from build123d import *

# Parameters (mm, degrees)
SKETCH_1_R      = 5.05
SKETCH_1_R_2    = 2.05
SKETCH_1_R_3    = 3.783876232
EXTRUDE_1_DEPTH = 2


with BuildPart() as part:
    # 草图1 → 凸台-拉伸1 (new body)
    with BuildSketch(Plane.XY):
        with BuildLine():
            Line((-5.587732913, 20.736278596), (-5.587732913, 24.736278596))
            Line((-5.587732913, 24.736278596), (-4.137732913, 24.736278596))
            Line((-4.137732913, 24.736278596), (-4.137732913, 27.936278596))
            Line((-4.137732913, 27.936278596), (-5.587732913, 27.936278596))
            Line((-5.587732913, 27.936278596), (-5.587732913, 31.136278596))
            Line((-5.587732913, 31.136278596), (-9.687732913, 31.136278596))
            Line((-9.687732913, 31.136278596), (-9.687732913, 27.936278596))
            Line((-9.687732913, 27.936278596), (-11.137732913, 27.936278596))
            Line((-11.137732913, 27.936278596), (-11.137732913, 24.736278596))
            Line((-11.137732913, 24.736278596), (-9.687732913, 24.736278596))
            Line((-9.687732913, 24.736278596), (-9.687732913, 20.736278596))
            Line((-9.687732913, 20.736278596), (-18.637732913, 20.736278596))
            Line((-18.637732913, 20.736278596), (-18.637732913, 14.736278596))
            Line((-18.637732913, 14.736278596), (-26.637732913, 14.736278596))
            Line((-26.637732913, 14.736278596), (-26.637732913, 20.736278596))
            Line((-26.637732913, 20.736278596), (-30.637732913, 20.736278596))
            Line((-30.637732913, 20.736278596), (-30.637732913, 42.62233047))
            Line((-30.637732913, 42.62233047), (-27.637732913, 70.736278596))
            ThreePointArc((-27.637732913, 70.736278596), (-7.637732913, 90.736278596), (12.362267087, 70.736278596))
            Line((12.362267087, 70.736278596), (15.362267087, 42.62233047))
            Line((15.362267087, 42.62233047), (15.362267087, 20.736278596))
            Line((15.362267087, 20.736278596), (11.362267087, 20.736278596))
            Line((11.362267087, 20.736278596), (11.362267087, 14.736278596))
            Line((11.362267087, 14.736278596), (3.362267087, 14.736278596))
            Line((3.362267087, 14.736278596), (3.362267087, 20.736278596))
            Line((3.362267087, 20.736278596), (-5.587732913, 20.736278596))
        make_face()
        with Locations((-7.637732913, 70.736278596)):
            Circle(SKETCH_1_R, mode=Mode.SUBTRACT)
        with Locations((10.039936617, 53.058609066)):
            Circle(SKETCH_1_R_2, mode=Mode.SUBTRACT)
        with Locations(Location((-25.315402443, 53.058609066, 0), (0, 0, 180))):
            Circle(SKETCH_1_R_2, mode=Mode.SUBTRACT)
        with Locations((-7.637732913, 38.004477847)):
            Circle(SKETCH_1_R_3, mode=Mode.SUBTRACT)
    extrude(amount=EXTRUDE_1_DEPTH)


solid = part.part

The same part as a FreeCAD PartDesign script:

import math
import FreeCAD as App
import Part
import Sketcher
Q = App.Units.Quantity

doc = App.newDocument("Part")
body = doc.addObject("PartDesign::Body", "Body")

# Sketch on XY plane
sketch1 = body.newObject("Sketcher::SketchObject", "Sketch")
sketch1.AttachmentSupport = (doc.getObject("XY_Plane"), [""])
sketch1.MapMode = "FlatFace"
sketch1.addGeometry([
    Part.LineSegment(App.Vector(-5.6, 24.7, 0), App.Vector(-5.6, 20.7, 0)),  # 0
    Part.LineSegment(App.Vector(-5.6, 20.7, 0), App.Vector(3.4, 20.7, 0)),  # 1
    Part.LineSegment(App.Vector(3.4, 20.7, 0), App.Vector(3.4, 14.7, 0)),  # 2
    Part.LineSegment(App.Vector(3.4, 14.7, 0), App.Vector(11.4, 14.7, 0)),  # 3
    Part.LineSegment(App.Vector(11.4, 14.7, 0), App.Vector(11.4, 20.7, 0)),  # 4
    Part.LineSegment(App.Vector(11.4, 20.7, 0), App.Vector(15.4, 20.7, 0)),  # 5
    Part.LineSegment(App.Vector(15.4, 20.7, 0), App.Vector(15.4, 42.6, 0)),  # 6
    Part.LineSegment(App.Vector(15.4, 42.6, 0), App.Vector(12.4, 70.7, 0)),  # 7
    Part.ArcOfCircle(Part.Circle(App.Vector(-7.6, 70.7, 0), App.Vector(0, 0, 1), 20), math.radians(0), math.radians(180)),  # 8
    Part.LineSegment(App.Vector(-27.6, 70.7, 0), App.Vector(-30.6, 42.6, 0)),  # 9
    Part.LineSegment(App.Vector(-30.6, 42.6, 0), App.Vector(-30.6, 20.7, 0)),  # 10
    Part.LineSegment(App.Vector(-30.6, 20.7, 0), App.Vector(-26.6, 20.7, 0)),  # 11
    Part.LineSegment(App.Vector(-26.6, 20.7, 0), App.Vector(-26.6, 14.7, 0)),  # 12
    Part.LineSegment(App.Vector(-26.6, 14.7, 0), App.Vector(-18.6, 14.7, 0)),  # 13
    Part.LineSegment(App.Vector(-18.6, 14.7, 0), App.Vector(-18.6, 20.7, 0)),  # 14
    Part.LineSegment(App.Vector(-18.6, 20.7, 0), App.Vector(-9.7, 20.7, 0)),  # 15
    Part.LineSegment(App.Vector(-9.7, 20.7, 0), App.Vector(-9.7, 24.7, 0)),  # 16
    Part.LineSegment(App.Vector(-9.7, 24.7, 0), App.Vector(-11.1, 24.7, 0)),  # 17
    Part.LineSegment(App.Vector(-11.1, 24.7, 0), App.Vector(-11.1, 27.9, 0)),  # 18
    Part.LineSegment(App.Vector(-11.1, 27.9, 0), App.Vector(-9.7, 27.9, 0)),  # 19
    Part.LineSegment(App.Vector(-9.7, 27.9, 0), App.Vector(-9.7, 31.1, 0)),  # 20
    Part.LineSegment(App.Vector(-9.7, 31.1, 0), App.Vector(-5.6, 31.1, 0)),  # 21
    Part.LineSegment(App.Vector(-5.6, 31.1, 0), App.Vector(-5.6, 27.9, 0)),  # 22
    Part.LineSegment(App.Vector(-5.6, 27.9, 0), App.Vector(-4.1, 27.9, 0)),  # 23
    Part.LineSegment(App.Vector(-4.1, 27.9, 0), App.Vector(-4.1, 24.7, 0)),  # 24
    Part.LineSegment(App.Vector(-4.1, 24.7, 0), App.Vector(-5.6, 24.7, 0)),  # 25
    Part.Circle(App.Vector(10, 53.1, 0), App.Vector(0, 0, 1), 2),  # 26
    Part.Circle(App.Vector(-7.6, 38, 0), App.Vector(0, 0, 1), 3.8),  # 27
    Part.Circle(App.Vector(-25.3, 53.1, 0), App.Vector(0, 0, 1), 2),  # 28
    Part.Circle(App.Vector(-7.6, 70.7, 0), App.Vector(0, 0, 1), 5),  # 29
], False)
sketch1.addConstraint([
    Sketcher.Constraint("Coincident", 0, 2, 1, 1),
    Sketcher.Constraint("Coincident", 1, 2, 2, 1),
    Sketcher.Constraint("Coincident", 2, 2, 3, 1),
    Sketcher.Constraint("Coincident", 3, 2, 4, 1),
    Sketcher.Constraint("Coincident", 4, 2, 5, 1),
    Sketcher.Constraint("Coincident", 5, 2, 6, 1),
    Sketcher.Constraint("Coincident", 6, 2, 7, 1),
    Sketcher.Constraint("Coincident", 7, 2, 8, 1),
    Sketcher.Constraint("Coincident", 8, 2, 9, 1),
    Sketcher.Constraint("Coincident", 9, 2, 10, 1),
    Sketcher.Constraint("Coincident", 10, 2, 11, 1),
    Sketcher.Constraint("Coincident", 11, 2, 12, 1),
    Sketcher.Constraint("Coincident", 12, 2, 13, 1),
    Sketcher.Constraint("Coincident", 13, 2, 14, 1),
    Sketcher.Constraint("Coincident", 14, 2, 15, 1),
    Sketcher.Constraint("Coincident", 15, 2, 16, 1),
    Sketcher.Constraint("Coincident", 16, 2, 17, 1),
    Sketcher.Constraint("Coincident", 17, 2, 18, 1),
    Sketcher.Constraint("Coincident", 18, 2, 19, 1),
    Sketcher.Constraint("Coincident", 19, 2, 20, 1),
    Sketcher.Constraint("Coincident", 20, 2, 21, 1),
    Sketcher.Constraint("Coincident", 21, 2, 22, 1),
    Sketcher.Constraint("Coincident", 22, 2, 23, 1),
    Sketcher.Constraint("Coincident", 23, 2, 24, 1),
    Sketcher.Constraint("Coincident", 24, 2, 25, 1),
    Sketcher.Constraint("Coincident", 25, 2, 0, 1),
    Sketcher.Constraint("Vertical", 0),
    Sketcher.Constraint("Horizontal", 1),
    Sketcher.Constraint("Vertical", 2),
    Sketcher.Constraint("Horizontal", 3),
    Sketcher.Constraint("Vertical", 4),
    Sketcher.Constraint("Horizontal", 5),
    Sketcher.Constraint("Vertical", 6),
    Sketcher.Constraint("Vertical", 10),
    Sketcher.Constraint("Horizontal", 11),
    Sketcher.Constraint("Vertical", 12),
    Sketcher.Constraint("Horizontal", 13),
    Sketcher.Constraint("Vertical", 14),
    Sketcher.Constraint("Horizontal", 15),
    Sketcher.Constraint("Vertical", 16),
    Sketcher.Constraint("Horizontal", 17),
    Sketcher.Constraint("Vertical", 18),
    Sketcher.Constraint("Horizontal", 19),
    Sketcher.Constraint("Vertical", 20),
    Sketcher.Constraint("Horizontal", 21),
    Sketcher.Constraint("Vertical", 22),
    Sketcher.Constraint("Horizontal", 23),
    Sketcher.Constraint("Vertical", 24),
    Sketcher.Constraint("Horizontal", 25),
    Sketcher.Constraint("Coincident", 29, 3, 8, 3),
    Sketcher.Constraint("Equal", 26, 28),
    Sketcher.Constraint("Horizontal", 26, 3, 28, 3),
    Sketcher.Constraint("Horizontal", 1, 2, 4, 2),
    Sketcher.Constraint("Horizontal", 29, 3, 7, 2),
    Sketcher.Constraint("Horizontal", 7, 2, 8, 2),
    Sketcher.Constraint("Horizontal", 6, 2, 9, 2),
    Sketcher.Constraint("Horizontal", 5, 2, 10, 2),
    Sketcher.Constraint("Horizontal", 3, 2, 12, 2),
    Sketcher.Constraint("Horizontal", 11, 2, 14, 2),
    Sketcher.Constraint("Horizontal", 19, 2, 22, 2),
    Sketcher.Constraint("Horizontal", 17, 2, 24, 2),
    Sketcher.Constraint("Vertical", 8, 3, 27, 3),
    Sketcher.Constraint("Vertical", 16, 2, 19, 2),
    Sketcher.Constraint("Vertical", 0, 2, 21, 2),
    Sketcher.Constraint("Equal", 5, 11),
    Sketcher.Constraint("Equal", 3, 13),
    Sketcher.Constraint("Equal", 1, 15),
    Sketcher.Constraint("Equal", 19, 23),
    Sketcher.Constraint("Equal", 11, 0),
    Sketcher.Constraint("Equal", 18, 20),
    Sketcher.Constraint("Equal", 7, 9),
    Sketcher.Constraint("Radius", 8, Q("20 mm")),
    Sketcher.Constraint("Diameter", 26, Q("4.1 mm")),
    Sketcher.Constraint("Diameter", 29, Q("10.1 mm")),
    Sketcher.Constraint("DistanceX", 3, 1, 3, 2, Q("8 mm")),
    Sketcher.Constraint("DistanceX", 5, 1, 5, 2, Q("4 mm")),
    Sketcher.Constraint("DistanceY", 2, 2, 2, 1, Q("6 mm")),
    Sketcher.Constraint("DistanceX", 21, 1, 21, 2, Q("4.1 mm")),
    Sketcher.Constraint("DistanceY", 18, 1, 18, 2, Q("3.2 mm")),
    Sketcher.Constraint("DistanceY", 0, 2, 8, 3, Q("50 mm")),
    Sketcher.Constraint("DistanceX", 27, 3, 1, 2, Q("11 mm")),
    Sketcher.Constraint("DistanceX", 17, 2, 17, 1, Q("1.45 mm")),
    Sketcher.Constraint("Diameter", 27, Q("7.567752 mm")),
    Sketcher.Constraint("DistanceY", 6, 1, 6, 2, Q("21.886052 mm")),
    Sketcher.Constraint("DistanceY", 27, 3, 8, 3, Q("32.731801 mm")),
    Sketcher.Constraint("DistanceY", -1, 1, 8, 3, Q("70.736279 mm")),
    Sketcher.Constraint("DistanceY", -1, 1, 26, 3, Q("53.058609 mm")),
    Sketcher.Constraint("DistanceX", 8, 3, 26, 3, Q("17.67767 mm")),
    Sketcher.Constraint("DistanceX", 28, 3, 27, 3, Q("17.67767 mm")),
    Sketcher.Constraint("DistanceX", 8, 3, -1, 1, Q("7.637733 mm")),
])
pad1 = body.newObject("PartDesign::Pad", "Pad")
pad1.Profile = sketch1
pad1.Length = 2

doc.recompute()
